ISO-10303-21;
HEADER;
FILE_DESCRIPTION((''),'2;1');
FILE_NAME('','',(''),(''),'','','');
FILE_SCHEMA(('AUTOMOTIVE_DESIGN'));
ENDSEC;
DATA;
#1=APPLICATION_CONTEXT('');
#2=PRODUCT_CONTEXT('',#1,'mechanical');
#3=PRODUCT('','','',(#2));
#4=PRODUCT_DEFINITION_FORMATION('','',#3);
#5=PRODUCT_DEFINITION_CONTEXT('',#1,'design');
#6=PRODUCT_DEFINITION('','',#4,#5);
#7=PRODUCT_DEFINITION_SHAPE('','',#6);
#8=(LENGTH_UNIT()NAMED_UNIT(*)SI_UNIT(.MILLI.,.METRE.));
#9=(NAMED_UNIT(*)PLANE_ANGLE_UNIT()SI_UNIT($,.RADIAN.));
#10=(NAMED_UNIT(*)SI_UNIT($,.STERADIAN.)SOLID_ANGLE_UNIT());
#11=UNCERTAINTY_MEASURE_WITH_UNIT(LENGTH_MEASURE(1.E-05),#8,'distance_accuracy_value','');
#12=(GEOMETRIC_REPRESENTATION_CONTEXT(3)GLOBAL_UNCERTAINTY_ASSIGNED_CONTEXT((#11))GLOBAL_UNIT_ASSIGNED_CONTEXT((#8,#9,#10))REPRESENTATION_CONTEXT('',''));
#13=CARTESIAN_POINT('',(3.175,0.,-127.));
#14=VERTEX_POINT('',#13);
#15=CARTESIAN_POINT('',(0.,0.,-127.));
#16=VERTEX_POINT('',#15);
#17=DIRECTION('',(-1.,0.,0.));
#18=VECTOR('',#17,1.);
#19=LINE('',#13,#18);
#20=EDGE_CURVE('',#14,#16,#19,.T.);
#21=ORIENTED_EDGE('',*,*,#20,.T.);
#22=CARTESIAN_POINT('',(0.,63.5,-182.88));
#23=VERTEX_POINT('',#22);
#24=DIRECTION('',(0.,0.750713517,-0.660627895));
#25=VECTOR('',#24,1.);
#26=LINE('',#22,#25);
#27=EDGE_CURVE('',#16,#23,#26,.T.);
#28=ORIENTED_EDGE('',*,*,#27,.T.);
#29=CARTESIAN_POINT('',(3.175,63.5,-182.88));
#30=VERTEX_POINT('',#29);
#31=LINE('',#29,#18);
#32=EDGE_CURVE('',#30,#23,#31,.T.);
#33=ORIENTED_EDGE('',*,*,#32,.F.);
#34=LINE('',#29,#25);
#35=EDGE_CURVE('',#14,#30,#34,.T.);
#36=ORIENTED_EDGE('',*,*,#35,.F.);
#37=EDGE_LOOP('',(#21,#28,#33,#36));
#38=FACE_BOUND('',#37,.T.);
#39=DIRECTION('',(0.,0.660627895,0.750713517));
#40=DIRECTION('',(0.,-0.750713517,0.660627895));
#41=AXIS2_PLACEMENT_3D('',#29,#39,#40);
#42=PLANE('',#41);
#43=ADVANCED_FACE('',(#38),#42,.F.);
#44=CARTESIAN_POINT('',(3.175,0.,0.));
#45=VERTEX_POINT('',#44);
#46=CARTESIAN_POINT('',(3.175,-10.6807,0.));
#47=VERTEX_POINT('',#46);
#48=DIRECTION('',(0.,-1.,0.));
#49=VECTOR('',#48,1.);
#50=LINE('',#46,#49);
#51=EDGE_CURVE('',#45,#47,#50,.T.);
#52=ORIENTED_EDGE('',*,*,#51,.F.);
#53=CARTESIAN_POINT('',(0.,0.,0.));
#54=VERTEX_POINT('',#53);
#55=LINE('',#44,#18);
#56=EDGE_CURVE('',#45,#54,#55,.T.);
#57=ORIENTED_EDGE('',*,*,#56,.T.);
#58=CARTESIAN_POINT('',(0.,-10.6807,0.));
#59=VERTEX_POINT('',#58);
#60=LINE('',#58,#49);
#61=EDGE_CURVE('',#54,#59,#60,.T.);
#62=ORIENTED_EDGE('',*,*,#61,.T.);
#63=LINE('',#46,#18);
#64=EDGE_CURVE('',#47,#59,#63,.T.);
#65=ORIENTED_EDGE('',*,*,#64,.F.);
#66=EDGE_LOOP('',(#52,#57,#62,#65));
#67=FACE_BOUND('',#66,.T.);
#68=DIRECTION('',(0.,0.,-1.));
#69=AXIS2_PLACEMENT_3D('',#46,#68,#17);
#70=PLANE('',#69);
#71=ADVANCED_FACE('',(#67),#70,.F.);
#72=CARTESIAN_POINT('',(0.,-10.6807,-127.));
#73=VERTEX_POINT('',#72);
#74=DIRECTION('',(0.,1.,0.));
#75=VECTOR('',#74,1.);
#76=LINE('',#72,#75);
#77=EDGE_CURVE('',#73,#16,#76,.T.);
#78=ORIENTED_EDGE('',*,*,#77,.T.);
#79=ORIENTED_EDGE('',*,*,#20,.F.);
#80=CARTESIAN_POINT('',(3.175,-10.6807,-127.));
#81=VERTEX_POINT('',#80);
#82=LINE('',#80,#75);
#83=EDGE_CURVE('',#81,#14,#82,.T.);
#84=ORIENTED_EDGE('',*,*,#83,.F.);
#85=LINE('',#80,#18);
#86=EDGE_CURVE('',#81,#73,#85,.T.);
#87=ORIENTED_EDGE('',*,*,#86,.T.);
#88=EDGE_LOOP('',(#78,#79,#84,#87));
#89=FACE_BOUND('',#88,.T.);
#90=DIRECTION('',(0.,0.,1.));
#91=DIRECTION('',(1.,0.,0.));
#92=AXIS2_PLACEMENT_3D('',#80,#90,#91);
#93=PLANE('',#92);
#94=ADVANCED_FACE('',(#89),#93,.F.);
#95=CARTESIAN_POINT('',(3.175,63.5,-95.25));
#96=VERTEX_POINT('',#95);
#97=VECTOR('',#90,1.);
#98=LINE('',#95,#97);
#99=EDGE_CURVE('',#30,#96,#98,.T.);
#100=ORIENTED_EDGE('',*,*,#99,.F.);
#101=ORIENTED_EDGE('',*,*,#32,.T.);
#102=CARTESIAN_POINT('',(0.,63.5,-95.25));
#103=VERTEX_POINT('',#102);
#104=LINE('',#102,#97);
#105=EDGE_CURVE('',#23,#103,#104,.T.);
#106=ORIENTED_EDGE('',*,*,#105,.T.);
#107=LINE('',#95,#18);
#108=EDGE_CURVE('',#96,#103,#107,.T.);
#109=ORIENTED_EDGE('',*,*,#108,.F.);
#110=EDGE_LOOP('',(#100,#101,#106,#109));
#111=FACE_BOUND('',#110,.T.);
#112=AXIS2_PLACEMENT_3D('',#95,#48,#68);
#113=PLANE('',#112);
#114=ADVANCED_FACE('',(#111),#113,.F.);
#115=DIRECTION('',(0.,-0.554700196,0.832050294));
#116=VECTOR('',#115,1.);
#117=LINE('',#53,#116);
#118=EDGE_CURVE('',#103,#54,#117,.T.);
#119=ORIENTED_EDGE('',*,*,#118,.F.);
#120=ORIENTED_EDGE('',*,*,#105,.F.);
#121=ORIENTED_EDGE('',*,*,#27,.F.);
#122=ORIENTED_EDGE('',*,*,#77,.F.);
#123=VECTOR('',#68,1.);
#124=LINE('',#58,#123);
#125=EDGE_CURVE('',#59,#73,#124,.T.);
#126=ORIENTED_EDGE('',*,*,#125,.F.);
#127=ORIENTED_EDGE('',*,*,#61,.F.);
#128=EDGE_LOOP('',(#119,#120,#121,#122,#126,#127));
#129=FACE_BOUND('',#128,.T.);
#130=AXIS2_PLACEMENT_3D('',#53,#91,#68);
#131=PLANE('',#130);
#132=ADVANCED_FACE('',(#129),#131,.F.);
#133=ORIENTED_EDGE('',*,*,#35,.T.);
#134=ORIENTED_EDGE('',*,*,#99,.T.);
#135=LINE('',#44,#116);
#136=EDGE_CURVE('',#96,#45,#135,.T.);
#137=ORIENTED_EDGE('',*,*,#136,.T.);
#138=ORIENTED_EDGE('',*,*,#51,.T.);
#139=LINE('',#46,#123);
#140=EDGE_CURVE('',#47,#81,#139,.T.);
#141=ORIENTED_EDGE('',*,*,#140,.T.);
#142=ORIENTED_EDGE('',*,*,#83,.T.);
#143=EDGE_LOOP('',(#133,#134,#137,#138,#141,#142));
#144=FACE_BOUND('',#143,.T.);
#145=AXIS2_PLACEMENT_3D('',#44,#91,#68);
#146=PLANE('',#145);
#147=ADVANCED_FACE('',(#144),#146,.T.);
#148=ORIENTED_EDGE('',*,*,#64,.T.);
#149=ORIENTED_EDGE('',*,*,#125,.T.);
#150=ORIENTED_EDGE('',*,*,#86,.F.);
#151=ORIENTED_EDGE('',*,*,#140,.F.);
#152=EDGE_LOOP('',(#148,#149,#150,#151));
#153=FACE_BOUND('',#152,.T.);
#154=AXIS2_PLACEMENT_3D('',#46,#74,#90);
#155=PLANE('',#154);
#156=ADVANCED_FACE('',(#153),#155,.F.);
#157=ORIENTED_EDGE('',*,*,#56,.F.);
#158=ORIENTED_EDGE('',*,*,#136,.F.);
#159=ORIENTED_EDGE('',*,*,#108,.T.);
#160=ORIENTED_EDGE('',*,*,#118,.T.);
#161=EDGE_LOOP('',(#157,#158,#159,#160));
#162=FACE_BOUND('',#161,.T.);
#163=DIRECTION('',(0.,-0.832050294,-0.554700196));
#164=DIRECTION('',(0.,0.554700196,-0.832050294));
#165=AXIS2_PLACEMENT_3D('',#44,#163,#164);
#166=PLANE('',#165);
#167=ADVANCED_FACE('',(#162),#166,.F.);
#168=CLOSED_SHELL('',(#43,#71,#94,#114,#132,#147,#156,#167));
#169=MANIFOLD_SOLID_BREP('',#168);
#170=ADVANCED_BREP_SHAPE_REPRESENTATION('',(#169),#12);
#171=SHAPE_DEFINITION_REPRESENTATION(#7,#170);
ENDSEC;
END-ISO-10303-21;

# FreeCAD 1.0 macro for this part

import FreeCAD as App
import Part
import Sketcher
Q = App.Units.Quantity


def add_polygon(sketch, points):
    """Adds a closed chain of lines whose ends are joined by coincident constraints."""
    first, n = sketch.GeometryCount, len(points)
    for a, b in zip(points, points[1:] + points[:1]):
        sketch.addGeometry(Part.LineSegment(App.Vector(*a, 0), App.Vector(*b, 0)), False)
    for i in range(n):
        sketch.addConstraint(Sketcher.Constraint("Coincident", first + i, 2, first + (i + 1) % n, 1))

doc = App.newDocument("Part")
body = doc.addObject("PartDesign::Body", "Body")

sketch1 = body.newObject("Sketcher::SketchObject", "Sketch")
sketch1.AttachmentSupport = (doc.getObject("YZ_Plane"), [""])
sketch1.MapMode = "FlatFace"
add_polygon(sketch1, [(64, -95), (0, 0), (-11, 0), (-11, -127), (0, -127), (64, -183)])
sketch1.addConstraint(Sketcher.Constraint("Horizontal", 1))
sketch1.addConstraint(Sketcher.Constraint("Vertical", 2))
sketch1.addConstraint(Sketcher.Constraint("Horizontal", 3))
sketch1.addConstraint(Sketcher.Constraint("Vertical", 5))
sketch1.addConstraint(Sketcher.Constraint("Coincident", 0, 2, -1, 1))
sketch1.addConstraint(Sketcher.Constraint("PointOnObject", 3, 2, -2))
sketch1.addConstraint(Sketcher.Constraint("DistanceY", 2, 2, 2, 1, Q("5 in")))
sketch1.addConstraint(Sketcher.Constraint("DistanceY", 5, 1, 5, 2, Q("3.45 in")))
sketch1.addConstraint(Sketcher.Constraint("DistanceX", -1, 1, 4, 2, Q("2.5 in")))
sketch1.addConstraint(Sketcher.Constraint("DistanceY", 4, 2, -1, 1, Q("7.2 in")))
sketch1.addConstraint(Sketcher.Constraint("DistanceX", 1, 2, 1, 1, Q("0.4205 in")))
pad1 = body.newObject("PartDesign::Pad", "Pad")
pad1.Profile = sketch1
pad1.Length = Q("0.125 in")

doc.recompute()
